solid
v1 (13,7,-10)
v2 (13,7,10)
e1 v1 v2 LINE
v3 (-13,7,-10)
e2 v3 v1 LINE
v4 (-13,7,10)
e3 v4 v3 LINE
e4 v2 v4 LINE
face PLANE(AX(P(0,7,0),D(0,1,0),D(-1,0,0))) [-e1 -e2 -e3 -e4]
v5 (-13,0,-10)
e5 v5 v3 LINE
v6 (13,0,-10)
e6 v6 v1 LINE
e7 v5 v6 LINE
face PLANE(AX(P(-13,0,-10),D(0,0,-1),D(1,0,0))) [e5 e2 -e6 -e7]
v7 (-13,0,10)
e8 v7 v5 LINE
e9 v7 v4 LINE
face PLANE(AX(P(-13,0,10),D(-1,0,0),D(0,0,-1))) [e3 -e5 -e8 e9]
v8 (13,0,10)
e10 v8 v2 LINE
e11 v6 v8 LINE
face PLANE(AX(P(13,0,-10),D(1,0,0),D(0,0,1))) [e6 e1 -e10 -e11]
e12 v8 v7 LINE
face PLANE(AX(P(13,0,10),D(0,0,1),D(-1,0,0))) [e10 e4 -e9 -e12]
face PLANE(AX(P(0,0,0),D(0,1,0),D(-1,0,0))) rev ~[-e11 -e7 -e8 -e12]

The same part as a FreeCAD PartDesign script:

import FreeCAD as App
import Part
import Sketcher


def add_polygon(sketch, points):
    """Adds a closed chain of lines whose ends are joined by coincident constraints."""
    first, n = sketch.GeometryCount, len(points)
    for a, b in zip(points, points[1:] + points[:1]):
        sketch.addGeometry(Part.LineSegment(App.Vector(*a, 0), App.Vector(*b, 0)), False)
    for i in range(n):
        sketch.addConstraint(Sketcher.Constraint("Coincident", first + i, 2, first + (i + 1) % n, 1))

doc = App.newDocument("Part")
params = doc.addObject("Spreadsheet::Sheet", "Params")
for row, (alias, value) in enumerate([
    ("sketch1_width", "26 mm"),
    ("sketch1_height", "20 mm"),
    ("pad1_length", "7 mm"),
], start=1):
    params.set(f"A{row}", alias)
    params.set(f"B{row}", "=" + value)
    params.setAlias(f"B{row}", alias)

body = doc.addObject("PartDesign::Body", "Body")

# Sketch on XZ plane
sketch1 = body.newObject("Sketcher::SketchObject", "Sketch")
sketch1.AttachmentSupport = (doc.getObject("XZ_Plane"), [""])
sketch1.MapMode = "FlatFace"
add_polygon(sketch1, [(-13, 10), (13, 10), (13, -10), (-13, -10)])  # lines 0-3
sketch1.addConstraint([
    Sketcher.Constraint("Horizontal", 0),
    Sketcher.Constraint("Vertical", 1),
    Sketcher.Constraint("Horizontal", 2),
    Sketcher.Constraint("Vertical", 3),
    Sketcher.Constraint("Symmetric", 0, 2, 2, 2, -1, 1),
    Sketcher.Constraint("DistanceX", 0, 1, 0, 2, 26.0),
    Sketcher.Constraint("DistanceY", 1, 2, 1, 1, 20.0),
])
sketch1.setExpression("Constraints[9]", "Params.sketch1_width")
sketch1.setExpression("Constraints[10]", "Params.sketch1_height")
pad1 = body.newObject("PartDesign::Pad", "Pad")
pad1.Profile = sketch1
pad1.setExpression("Length", "Params.pad1_length")
pad1.Reversed = True

doc.recompute()
